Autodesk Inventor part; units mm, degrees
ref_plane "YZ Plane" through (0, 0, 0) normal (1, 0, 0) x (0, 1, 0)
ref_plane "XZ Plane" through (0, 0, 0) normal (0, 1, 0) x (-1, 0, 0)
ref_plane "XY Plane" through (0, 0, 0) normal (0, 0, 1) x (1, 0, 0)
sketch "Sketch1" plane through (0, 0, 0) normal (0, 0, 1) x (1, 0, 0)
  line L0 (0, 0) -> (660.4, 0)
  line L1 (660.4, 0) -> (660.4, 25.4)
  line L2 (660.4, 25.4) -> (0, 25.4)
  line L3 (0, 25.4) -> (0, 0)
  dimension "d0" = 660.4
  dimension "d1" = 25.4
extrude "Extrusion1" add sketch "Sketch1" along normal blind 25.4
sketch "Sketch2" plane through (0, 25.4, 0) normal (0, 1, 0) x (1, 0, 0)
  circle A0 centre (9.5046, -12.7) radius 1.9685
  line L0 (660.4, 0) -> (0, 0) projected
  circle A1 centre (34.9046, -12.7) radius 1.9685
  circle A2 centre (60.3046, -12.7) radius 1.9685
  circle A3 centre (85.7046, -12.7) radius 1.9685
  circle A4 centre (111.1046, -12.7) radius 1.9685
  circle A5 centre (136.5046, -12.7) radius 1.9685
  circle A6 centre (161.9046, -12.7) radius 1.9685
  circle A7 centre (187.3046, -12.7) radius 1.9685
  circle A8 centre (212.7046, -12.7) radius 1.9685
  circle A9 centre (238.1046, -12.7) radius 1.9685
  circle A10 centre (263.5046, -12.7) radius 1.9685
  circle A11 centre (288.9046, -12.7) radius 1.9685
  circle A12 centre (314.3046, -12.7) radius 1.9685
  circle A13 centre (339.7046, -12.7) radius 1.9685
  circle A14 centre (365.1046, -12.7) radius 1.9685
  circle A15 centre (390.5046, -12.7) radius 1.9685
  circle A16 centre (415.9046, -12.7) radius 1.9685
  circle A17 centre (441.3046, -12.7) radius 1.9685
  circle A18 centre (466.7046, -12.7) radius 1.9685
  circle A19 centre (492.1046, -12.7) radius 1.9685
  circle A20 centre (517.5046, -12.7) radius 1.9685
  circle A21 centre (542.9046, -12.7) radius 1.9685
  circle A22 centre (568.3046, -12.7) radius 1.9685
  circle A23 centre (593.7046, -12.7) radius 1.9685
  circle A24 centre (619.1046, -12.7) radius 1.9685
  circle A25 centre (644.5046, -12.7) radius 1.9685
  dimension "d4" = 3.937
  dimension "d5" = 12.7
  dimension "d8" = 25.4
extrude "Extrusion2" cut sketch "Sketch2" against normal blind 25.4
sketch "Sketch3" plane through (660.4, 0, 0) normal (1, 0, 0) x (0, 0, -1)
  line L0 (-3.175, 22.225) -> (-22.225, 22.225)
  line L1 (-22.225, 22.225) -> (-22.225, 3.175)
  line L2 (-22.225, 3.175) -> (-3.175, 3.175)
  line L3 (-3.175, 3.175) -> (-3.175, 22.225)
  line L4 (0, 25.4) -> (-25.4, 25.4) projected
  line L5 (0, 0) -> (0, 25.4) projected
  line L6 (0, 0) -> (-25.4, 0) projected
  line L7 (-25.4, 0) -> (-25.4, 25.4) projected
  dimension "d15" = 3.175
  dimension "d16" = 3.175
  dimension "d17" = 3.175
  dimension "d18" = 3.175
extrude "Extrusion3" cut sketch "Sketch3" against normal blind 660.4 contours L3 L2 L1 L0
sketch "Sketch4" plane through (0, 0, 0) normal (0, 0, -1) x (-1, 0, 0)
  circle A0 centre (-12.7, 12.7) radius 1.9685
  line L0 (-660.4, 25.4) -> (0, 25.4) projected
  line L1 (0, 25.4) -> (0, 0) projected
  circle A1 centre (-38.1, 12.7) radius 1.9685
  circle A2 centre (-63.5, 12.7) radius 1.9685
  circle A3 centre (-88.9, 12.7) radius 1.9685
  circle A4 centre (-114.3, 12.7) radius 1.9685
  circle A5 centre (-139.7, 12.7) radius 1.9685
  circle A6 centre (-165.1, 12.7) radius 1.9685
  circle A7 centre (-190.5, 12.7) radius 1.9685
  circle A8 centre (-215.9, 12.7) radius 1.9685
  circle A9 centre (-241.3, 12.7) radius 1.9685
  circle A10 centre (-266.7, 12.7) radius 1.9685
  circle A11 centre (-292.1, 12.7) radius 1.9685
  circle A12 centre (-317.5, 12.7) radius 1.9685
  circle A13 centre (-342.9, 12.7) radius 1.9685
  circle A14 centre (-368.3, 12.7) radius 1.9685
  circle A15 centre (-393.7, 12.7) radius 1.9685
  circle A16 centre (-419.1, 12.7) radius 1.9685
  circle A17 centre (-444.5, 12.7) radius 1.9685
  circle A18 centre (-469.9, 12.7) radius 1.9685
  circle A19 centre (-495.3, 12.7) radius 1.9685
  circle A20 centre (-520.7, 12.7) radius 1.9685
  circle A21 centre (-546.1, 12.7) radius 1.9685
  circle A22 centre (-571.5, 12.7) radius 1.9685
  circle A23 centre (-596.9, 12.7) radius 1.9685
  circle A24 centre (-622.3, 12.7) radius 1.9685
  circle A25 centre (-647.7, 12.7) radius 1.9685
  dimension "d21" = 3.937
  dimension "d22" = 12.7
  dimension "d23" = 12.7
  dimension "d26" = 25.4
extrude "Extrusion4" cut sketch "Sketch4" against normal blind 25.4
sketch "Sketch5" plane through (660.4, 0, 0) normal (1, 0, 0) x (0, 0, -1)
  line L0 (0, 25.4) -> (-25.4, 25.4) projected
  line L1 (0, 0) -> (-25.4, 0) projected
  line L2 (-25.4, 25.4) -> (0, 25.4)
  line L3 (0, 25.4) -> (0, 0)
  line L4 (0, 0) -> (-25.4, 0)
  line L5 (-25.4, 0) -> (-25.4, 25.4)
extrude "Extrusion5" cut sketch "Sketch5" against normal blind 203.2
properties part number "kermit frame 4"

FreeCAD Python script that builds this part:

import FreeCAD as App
import Part
import Sketcher

V = App.Vector
Q = App.Units.Quantity

doc = App.newDocument("Part")
params = doc.addObject("Spreadsheet::Sheet", "Params")
for row, (alias, value) in enumerate([
    ("sketch1_width", "26 in"),
    ("sketch1_height", "1 in"),
    ("pad1_length", "1 in"),
    ("sketch2_diameter", "0.155 in"),
    ("pocket1_length", "1 in"),
    ("sketch3_width", "0.75 in"),
    ("pocket2_length", "26 in"),
    ("sketch4_diameter", "0.155 in"),
    ("pocket3_length", "1 in"),
    ("sketch5_width", "1 in"),
    ("pocket4_length", "8 in"),
], start=1):
    params.set(f"A{row}", alias)
    params.set(f"B{row}", "=" + value)
    params.setAlias(f"B{row}", alias)

body = doc.addObject("PartDesign::Body", "Body")

# Sketch on XY plane
sketch1 = doc.addObject("Sketcher::SketchObject", "Sketch")
body.addObject(sketch1)
sketch1.AttachmentSupport = (doc.XY_Plane, [""])
sketch1.MapMode = "FlatFace"
sketch1.addGeometry([
    Part.LineSegment(V(0, 25, 0), V(0, 0, 0)),
    Part.LineSegment(V(0, 0, 0), V(660, 0, 0)),
    Part.LineSegment(V(660, 0, 0), V(660, 25, 0)),
    Part.LineSegment(V(660, 25, 0), V(0, 25, 0)),
], False)
sketch1.addConstraint([
    Sketcher.Constraint("Coincident", 0, 2, 1, 1),
    Sketcher.Constraint("Coincident", 1, 2, 2, 1),
    Sketcher.Constraint("Coincident", 2, 2, 3, 1),
    Sketcher.Constraint("Coincident", 3, 2, 0, 1),
    Sketcher.Constraint("Vertical", 0),
    Sketcher.Constraint("Horizontal", 1),
    Sketcher.Constraint("Vertical", 2),
    Sketcher.Constraint("Horizontal", 3),
    Sketcher.Constraint("Coincident", 0, 2, -1, 1),
    Sketcher.Constraint("DistanceX", 1, 1, 1, 2, Q("26 in")),
    Sketcher.Constraint("DistanceY", 0, 2, 0, 1, Q("1 in")),
])
sketch1.setExpression("Constraints[9]", "Params.sketch1_width")
sketch1.setExpression("Constraints[10]", "Params.sketch1_height")
pad1 = doc.addObject("PartDesign::Pad", "Pad")
body.addObject(pad1)
pad1.Profile = sketch1
pad1.setExpression("Length", "Params.pad1_length")

# Sketch on XZ plane
sketch2 = doc.addObject("Sketcher::SketchObject", "Sketch001")
body.addObject(sketch2)
sketch2.AttachmentSupport = (doc.XZ_Plane, [""])
sketch2.MapMode = "FlatFace"
sketch2.AttachmentOffset = App.Placement(V(0, 0, -1 * 25.4), App.Rotation())
sketch2.addGeometry([
    Part.Circle(V(9.5, 12.7, 0), V(0, 0, 1), 2),  # 0
    Part.Circle(V(34.9, 12.7, 0), V(0, 0, 1), 2),  # 1
    Part.Circle(V(60.3, 12.7, 0), V(0, 0, 1), 2),  # 2
    Part.Circle(V(85.7, 12.7, 0), V(0, 0, 1), 2),  # 3
    Part.Circle(V(111.1, 12.7, 0), V(0, 0, 1), 2),  # 4
    Part.Circle(V(136.5, 12.7, 0), V(0, 0, 1), 2),  # 5
    Part.Circle(V(161.9, 12.7, 0), V(0, 0, 1), 2),  # 6
    Part.Circle(V(187.3, 12.7, 0), V(0, 0, 1), 2),  # 7
    Part.Circle(V(212.7, 12.7, 0), V(0, 0, 1), 2),  # 8
    Part.Circle(V(238.1, 12.7, 0), V(0, 0, 1), 2),  # 9
    Part.Circle(V(263.5, 12.7, 0), V(0, 0, 1), 2),  # 10
    Part.Circle(V(288.9, 12.7, 0), V(0, 0, 1), 2),  # 11
    Part.Circle(V(314.3, 12.7, 0), V(0, 0, 1), 2),  # 12
    Part.Circle(V(339.7, 12.7, 0), V(0, 0, 1), 2),  # 13
    Part.Circle(V(365.1, 12.7, 0), V(0, 0, 1), 2),  # 14
    Part.Circle(V(390.5, 12.7, 0), V(0, 0, 1), 2),  # 15
    Part.Circle(V(415.9, 12.7, 0), V(0, 0, 1), 2),  # 16
    Part.Circle(V(441.3, 12.7, 0), V(0, 0, 1), 2),  # 17
    Part.Circle(V(466.7, 12.7, 0), V(0, 0, 1), 2),  # 18
    Part.Circle(V(492.1, 12.7, 0), V(0, 0, 1), 2),  # 19
    Part.Circle(V(517.5, 12.7, 0), V(0, 0, 1), 2),  # 20
    Part.Circle(V(542.9, 12.7, 0), V(0, 0, 1), 2),  # 21
    Part.Circle(V(568.3, 12.7, 0), V(0, 0, 1), 2),  # 22
    Part.Circle(V(593.7, 12.7, 0), V(0, 0, 1), 2),  # 23
    Part.Circle(V(619.1, 12.7, 0), V(0, 0, 1), 2),  # 24
    Part.Circle(V(644.5, 12.7, 0), V(0, 0, 1), 2),  # 25
], False)
sketch2.addConstraint([
    Sketcher.Constraint("Equal", 0, 1),
    Sketcher.Constraint("Equal", 1, 2),
    Sketcher.Constraint("Equal", 2, 3),
    Sketcher.Constraint("Equal", 3, 4),
    Sketcher.Constraint("Equal", 4, 5),
    Sketcher.Constraint("Equal", 5, 6),
    Sketcher.Constraint("Equal", 6, 7),
    Sketcher.Constraint("Equal", 7, 8),
    Sketcher.Constraint("Equal", 8, 9),
    Sketcher.Constraint("Equal", 9, 10),
    Sketcher.Constraint("Equal", 10, 11),
    Sketcher.Constraint("Equal", 11, 12),
    Sketcher.Constraint("Equal", 12, 13),
    Sketcher.Constraint("Equal", 13, 14),
    Sketcher.Constraint("Equal", 14, 15),
    Sketcher.Constraint("Equal", 15, 16),
    Sketcher.Constraint("Equal", 16, 17),
    Sketcher.Constraint("Equal", 17, 18),
    Sketcher.Constraint("Equal", 18, 19),
    Sketcher.Constraint("Equal", 19, 20),
    Sketcher.Constraint("Equal", 20, 21),
    Sketcher.Constraint("Equal", 21, 22),
    Sketcher.Constraint("Equal", 22, 23),
    Sketcher.Constraint("Equal", 23, 24),
    Sketcher.Constraint("Equal", 24, 25),
    Sketcher.Constraint("Horizontal", 0, 3, 1, 3),
    Sketcher.Constraint("Horizontal", 1, 3, 2, 3),
    Sketcher.Constraint("Horizontal", 2, 3, 3, 3),
    Sketcher.Constraint("Horizontal", 3, 3, 4, 3),
    Sketcher.Constraint("Horizontal", 4, 3, 5, 3),
    Sketcher.Constraint("Horizontal", 5, 3, 6, 3),
    Sketcher.Constraint("Horizontal", 6, 3, 7, 3),
    Sketcher.Constraint("Horizontal", 7, 3, 8, 3),
    Sketcher.Constraint("Horizontal", 8, 3, 9, 3),
    Sketcher.Constraint("Horizontal", 9, 3, 10, 3),
    Sketcher.Constraint("Horizontal", 10, 3, 11, 3),
    Sketcher.Constraint("Horizontal", 11, 3, 12, 3),
    Sketcher.Constraint("Horizontal", 12, 3, 13, 3),
    Sketcher.Constraint("Horizontal", 13, 3, 14, 3),
    Sketcher.Constraint("Horizontal", 14, 3, 15, 3),
    Sketcher.Constraint("Horizontal", 15, 3, 16, 3),
    Sketcher.Constraint("Horizontal", 16, 3, 17, 3),
    Sketcher.Constraint("Horizontal", 17, 3, 18, 3),
    Sketcher.Constraint("Horizontal", 18, 3, 19, 3),
    Sketcher.Constraint("Horizontal", 19, 3, 20, 3),
    Sketcher.Constraint("Horizontal", 20, 3, 21, 3),
    Sketcher.Constraint("Horizontal", 21, 3, 22, 3),
    Sketcher.Constraint("Horizontal", 22, 3, 23, 3),
    Sketcher.Constraint("Horizontal", 23, 3, 24, 3),
    Sketcher.Constraint("Horizontal", 24, 3, 25, 3),
    Sketcher.Constraint("Diameter", 0, Q("0.155 in")),
    Sketcher.Constraint("DistanceX", 0, 3, 1, 3, Q("1 in")),
    Sketcher.Constraint("DistanceX", 1, 3, 2, 3, Q("1 in")),
    Sketcher.Constraint("DistanceX", 2, 3, 3, 3, Q("1 in")),
    Sketcher.Constraint("DistanceX", 3, 3, 4, 3, Q("1 in")),
    Sketcher.Constraint("DistanceX", 4, 3, 5, 3, Q("1 in")),
    Sketcher.Constraint("DistanceX", 5, 3, 6, 3, Q("1 in")),
    Sketcher.Constraint("DistanceX", 6, 3, 7, 3, Q("1 in")),
    Sketcher.Constraint("DistanceX", 7, 3, 8, 3, Q("1 in")),
    Sketcher.Constraint("DistanceX", 8, 3, 9, 3, Q("1 in")),
    Sketcher.Constraint("DistanceX", 9, 3, 10, 3, Q("1 in")),
    Sketcher.Constraint("DistanceX", 10, 3, 11, 3, Q("1 in")),
    Sketcher.Constraint("DistanceX", 11, 3, 12, 3, Q("1 in")),
    Sketcher.Constraint("DistanceX", 12, 3, 13, 3, Q("1 in")),
    Sketcher.Constraint("DistanceX", 13, 3, 14, 3, Q("1 in")),
    Sketcher.Constraint("DistanceX", 14, 3, 15, 3, Q("1 in")),
    Sketcher.Constraint("DistanceX", 15, 3, 16, 3, Q("1 in")),
    Sketcher.Constraint("DistanceX", 16, 3, 17, 3, Q("1 in")),
    Sketcher.Constraint("DistanceX", 17, 3, 18, 3, Q("1 in")),
    Sketcher.Constraint("DistanceX", 18, 3, 19, 3, Q("1 in")),
    Sketcher.Constraint("DistanceX", 19, 3, 20, 3, Q("1 in")),
    Sketcher.Constraint("DistanceX", 20, 3, 21, 3, Q("1 in")),
    Sketcher.Constraint("DistanceX", 21, 3, 22, 3, Q("1 in")),
    Sketcher.Constraint("DistanceX", 22, 3, 23, 3, Q("1 in")),
    Sketcher.Constraint("DistanceX", 23, 3, 24, 3, Q("1 in")),
    Sketcher.Constraint("DistanceX", 24, 3, 25, 3, Q("1 in")),
    Sketcher.Constraint("DistanceY", -1, 1, 0, 3, Q("0.5 in")),
    Sketcher.Constraint("DistanceX", -1, 1, 0, 3, Q("0.3742 in")),
])
sketch2.setExpression("Constraints[50]", "Params.sketch2_diameter")
pocket1 = doc.addObject("PartDesign::Pocket", "Pocket")
body.addObject(pocket1)
pocket1.Profile = sketch2
pocket1.setExpression("Length", "Params.pocket1_length")
pocket1.Reversed = True

# Sketch on YZ plane
sketch3 = doc.addObject("Sketcher::SketchObject", "Sketch002")
body.addObject(sketch3)
sketch3.AttachmentSupport = (doc.YZ_Plane, [""])
sketch3.MapMode = "FlatFace"
sketch3.AttachmentOffset = App.Placement(V(0, 0, 26 * 25.4), App.Rotation())
sketch3.addGeometry([
    Part.LineSegment(V(3, 3, 0), V(22, 3, 0)),
    Part.LineSegment(V(22, 3, 0), V(22, 22, 0)),
    Part.LineSegment(V(22, 22, 0), V(3, 22, 0)),
    Part.LineSegment(V(3, 22, 0), V(3, 3, 0)),
], False)
sketch3.addConstraint([
    Sketcher.Constraint("Coincident", 0, 2, 1, 1),
    Sketcher.Constraint("Coincident", 1, 2, 2, 1),
    Sketcher.Constraint("Coincident", 2, 2, 3, 1),
    Sketcher.Constraint("Coincident", 3, 2, 0, 1),
    Sketcher.Constraint("Horizontal", 0),
    Sketcher.Constraint("Vertical", 1),
    Sketcher.Constraint("Horizontal", 2),
    Sketcher.Constraint("Vertical", 3),
    Sketcher.Constraint("Equal", 2, 1),
    Sketcher.Constraint("DistanceY", -1, 1, 0, 2, Q("0.125 in")),
    Sketcher.Constraint("DistanceX", -1, 1, 2, 2, Q("0.125 in")),
    Sketcher.Constraint("DistanceX", 0, 1, 0, 2, Q("0.75 in")),
])
sketch3.setExpression("Constraints[11]", "Params.sketch3_width")
pocket2 = doc.addObject("PartDesign::Pocket", "Pocket001")
body.addObject(pocket2)
pocket2.Profile = sketch3
pocket2.setExpression("Length", "Params.pocket2_length")

# Sketch on XY plane
sketch4 = doc.addObject("Sketcher::SketchObject", "Sketch003")
body.addObject(sketch4)
sketch4.AttachmentSupport = (doc.XY_Plane, [""])
sketch4.MapMode = "FlatFace"
sketch4.addGeometry([
    Part.Circle(V(12.7, 12.7, 0), V(0, 0, 1), 2),  # 0
    Part.Circle(V(38.1, 12.7, 0), V(0, 0, 1), 2),  # 1
    Part.Circle(V(63.5, 12.7, 0), V(0, 0, 1), 2),  # 2
    Part.Circle(V(88.9, 12.7, 0), V(0, 0, 1), 2),  # 3
    Part.Circle(V(114.3, 12.7, 0), V(0, 0, 1), 2),  # 4
    Part.Circle(V(139.7, 12.7, 0), V(0, 0, 1), 2),  # 5
    Part.Circle(V(165.1, 12.7, 0), V(0, 0, 1), 2),  # 6
    Part.Circle(V(190.5, 12.7, 0), V(0, 0, 1), 2),  # 7
    Part.Circle(V(215.9, 12.7, 0), V(0, 0, 1), 2),  # 8
    Part.Circle(V(241.3, 12.7, 0), V(0, 0, 1), 2),  # 9
    Part.Circle(V(266.7, 12.7, 0), V(0, 0, 1), 2),  # 10
    Part.Circle(V(292.1, 12.7, 0), V(0, 0, 1), 2),  # 11
    Part.Circle(V(317.5, 12.7, 0), V(0, 0, 1), 2),  # 12
    Part.Circle(V(342.9, 12.7, 0), V(0, 0, 1), 2),  # 13
    Part.Circle(V(368.3, 12.7, 0), V(0, 0, 1), 2),  # 14
    Part.Circle(V(393.7, 12.7, 0), V(0, 0, 1), 2),  # 15
    Part.Circle(V(419.1, 12.7, 0), V(0, 0, 1), 2),  # 16
    Part.Circle(V(444.5, 12.7, 0), V(0, 0, 1), 2),  # 17
    Part.Circle(V(469.9, 12.7, 0), V(0, 0, 1), 2),  # 18
    Part.Circle(V(495.3, 12.7, 0), V(0, 0, 1), 2),  # 19
    Part.Circle(V(520.7, 12.7, 0), V(0, 0, 1), 2),  # 20
    Part.Circle(V(546.1, 12.7, 0), V(0, 0, 1), 2),  # 21
    Part.Circle(V(571.5, 12.7, 0), V(0, 0, 1), 2),  # 22
    Part.Circle(V(596.9, 12.7, 0), V(0, 0, 1), 2),  # 23
    Part.Circle(V(622.3, 12.7, 0), V(0, 0, 1), 2),  # 24
    Part.Circle(V(647.7, 12.7, 0), V(0, 0, 1), 2),  # 25
], False)
sketch4.addConstraint([
    Sketcher.Constraint("Equal", 0, 1),
    Sketcher.Constraint("Equal", 1, 2),
    Sketcher.Constraint("Equal", 2, 3),
    Sketcher.Constraint("Equal", 3, 4),
    Sketcher.Constraint("Equal", 4, 5),
    Sketcher.Constraint("Equal", 5, 6),
    Sketcher.Constraint("Equal", 6, 7),
    Sketcher.Constraint("Equal", 7, 8),
    Sketcher.Constraint("Equal", 8, 9),
    Sketcher.Constraint("Equal", 9, 10),
    Sketcher.Constraint("Equal", 10, 11),
    Sketcher.Constraint("Equal", 11, 12),
    Sketcher.Constraint("Equal", 12, 13),
    Sketcher.Constraint("Equal", 13, 14),
    Sketcher.Constraint("Equal", 14, 15),
    Sketcher.Constraint("Equal", 15, 16),
    Sketcher.Constraint("Equal", 16, 17),
    Sketcher.Constraint("Equal", 17, 18),
    Sketcher.Constraint("Equal", 18, 19),
    Sketcher.Constraint("Equal", 19, 20),
    Sketcher.Constraint("Equal", 20, 21),
    Sketcher.Constraint("Equal", 21, 22),
    Sketcher.Constraint("Equal", 22, 23),
    Sketcher.Constraint("Equal", 23, 24),
    Sketcher.Constraint("Equal", 24, 25),
    Sketcher.Constraint("Horizontal", 0, 3, 1, 3),
    Sketcher.Constraint("Horizontal", 1, 3, 2, 3),
    Sketcher.Constraint("Horizontal", 2, 3, 3, 3),
    Sketcher.Constraint("Horizontal", 3, 3, 4, 3),
    Sketcher.Constraint("Horizontal", 4, 3, 5, 3),
    Sketcher.Constraint("Horizontal", 5, 3, 6, 3),
    Sketcher.Constraint("Horizontal", 6, 3, 7, 3),
    Sketcher.Constraint("Horizontal", 7, 3, 8, 3),
    Sketcher.Constraint("Horizontal", 8, 3, 9, 3),
    Sketcher.Constraint("Horizontal", 9, 3, 10, 3),
    Sketcher.Constraint("Horizontal", 10, 3, 11, 3),
    Sketcher.Constraint("Horizontal", 11, 3, 12, 3),
    Sketcher.Constraint("Horizontal", 12, 3, 13, 3),
    Sketcher.Constraint("Horizontal", 13, 3, 14, 3),
    Sketcher.Constraint("Horizontal", 14, 3, 15, 3),
    Sketcher.Constraint("Horizontal", 15, 3, 16, 3),
    Sketcher.Constraint("Horizontal", 16, 3, 17, 3),
    Sketcher.Constraint("Horizontal", 17, 3, 18, 3),
    Sketcher.Constraint("Horizontal", 18, 3, 19, 3),
    Sketcher.Constraint("Horizontal", 19, 3, 20, 3),
    Sketcher.Constraint("Horizontal", 20, 3, 21, 3),
    Sketcher.Constraint("Horizontal", 21, 3, 22, 3),
    Sketcher.Constraint("Horizontal", 22, 3, 23, 3),
    Sketcher.Constraint("Horizontal", 23, 3, 24, 3),
    Sketcher.Constraint("Horizontal", 24, 3, 25, 3),
    Sketcher.Constraint("Diameter", 0, Q("0.155 in")),
    Sketcher.Constraint("DistanceX", 0, 3, 1, 3, Q("1 in")),
    Sketcher.Constraint("DistanceX", 1, 3, 2, 3, Q("1 in")),
    Sketcher.Constraint("DistanceX", 2, 3, 3, 3, Q("1 in")),
    Sketcher.Constraint("DistanceX", 3, 3, 4, 3, Q("1 in")),
    Sketcher.Constraint("DistanceX", 4, 3, 5, 3, Q("1 in")),
    Sketcher.Constraint("DistanceX", 5, 3, 6, 3, Q("1 in")),
    Sketcher.Constraint("DistanceX", 6, 3, 7, 3, Q("1 in")),
    Sketcher.Constraint("DistanceX", 7, 3, 8, 3, Q("1 in")),
    Sketcher.Constraint("DistanceX", 8, 3, 9, 3, Q("1 in")),
    Sketcher.Constraint("DistanceX", 9, 3, 10, 3, Q("1 in")),
    Sketcher.Constraint("DistanceX", 10, 3, 11, 3, Q("1 in")),
    Sketcher.Constraint("DistanceX", 11, 3, 12, 3, Q("1 in")),
    Sketcher.Constraint("DistanceX", 12, 3, 13, 3, Q("1 in")),
    Sketcher.Constraint("DistanceX", 13, 3, 14, 3, Q("1 in")),
    Sketcher.Constraint("DistanceX", 14, 3, 15, 3, Q("1 in")),
    Sketcher.Constraint("DistanceX", 15, 3, 16, 3, Q("1 in")),
    Sketcher.Constraint("DistanceX", 16, 3, 17, 3, Q("1 in")),
    Sketcher.Constraint("DistanceX", 17, 3, 18, 3, Q("1 in")),
    Sketcher.Constraint("DistanceX", 18, 3, 19, 3, Q("1 in")),
    Sketcher.Constraint("DistanceX", 19, 3, 20, 3, Q("1 in")),
    Sketcher.Constraint("DistanceX", 20, 3, 21, 3, Q("1 in")),
    Sketcher.Constraint("DistanceX", 21, 3, 22, 3, Q("1 in")),
    Sketcher.Constraint("DistanceX", 22, 3, 23, 3, Q("1 in")),
    Sketcher.Constraint("DistanceX", 23, 3, 24, 3, Q("1 in")),
    Sketcher.Constraint("DistanceX", 24, 3, 25, 3, Q("1 in")),
    Sketcher.Constraint("DistanceX", -1, 1, 0, 3, Q("0.5 in")),
    Sketcher.Constraint("DistanceY", -1, 1, 0, 3, Q("0.5 in")),
])
sketch4.setExpression("Constraints[50]", "Params.sketch4_diameter")
pocket3 = doc.addObject("PartDesign::Pocket", "Pocket002")
body.addObject(pocket3)
pocket3.Profile = sketch4
pocket3.setExpression("Length", "Params.pocket3_length")
pocket3.Reversed = True

# Sketch on YZ plane
sketch5 = doc.addObject("Sketcher::SketchObject", "Sketch004")
body.addObject(sketch5)
sketch5.AttachmentSupport = (doc.YZ_Plane, [""])
sketch5.MapMode = "FlatFace"
sketch5.AttachmentOffset = App.Placement(V(0, 0, 26 * 25.4), App.Rotation())
sketch5.addGeometry([
    Part.LineSegment(V(0, 0, 0), V(25, 0, 0)),
    Part.LineSegment(V(25, 0, 0), V(25, 25, 0)),
    Part.LineSegment(V(25, 25, 0), V(0, 25, 0)),
    Part.LineSegment(V(0, 25, 0), V(0, 0, 0)),
], False)
sketch5.addConstraint([
    Sketcher.Constraint("Coincident", 0, 2, 1, 1),
    Sketcher.Constraint("Coincident", 1, 2, 2, 1),
    Sketcher.Constraint("Coincident", 2, 2, 3, 1),
    Sketcher.Constraint("Coincident", 3, 2, 0, 1),
    Sketcher.Constraint("Horizontal", 0),
    Sketcher.Constraint("Vertical", 1),
    Sketcher.Constraint("Horizontal", 2),
    Sketcher.Constraint("Vertical", 3),
    Sketcher.Constraint("Coincident", 3, 2, -1, 1),
    Sketcher.Constraint("Equal", 2, 1),
    Sketcher.Constraint("DistanceX", 0, 1, 0, 2, Q("1 in")),
])
sketch5.setExpression("Constraints[10]", "Params.sketch5_width")
pocket4 = doc.addObject("PartDesign::Pocket", "Pocket003")
body.addObject(pocket4)
pocket4.Profile = sketch5
pocket4.setExpression("Length", "Params.pocket4_length")

doc.recompute()
